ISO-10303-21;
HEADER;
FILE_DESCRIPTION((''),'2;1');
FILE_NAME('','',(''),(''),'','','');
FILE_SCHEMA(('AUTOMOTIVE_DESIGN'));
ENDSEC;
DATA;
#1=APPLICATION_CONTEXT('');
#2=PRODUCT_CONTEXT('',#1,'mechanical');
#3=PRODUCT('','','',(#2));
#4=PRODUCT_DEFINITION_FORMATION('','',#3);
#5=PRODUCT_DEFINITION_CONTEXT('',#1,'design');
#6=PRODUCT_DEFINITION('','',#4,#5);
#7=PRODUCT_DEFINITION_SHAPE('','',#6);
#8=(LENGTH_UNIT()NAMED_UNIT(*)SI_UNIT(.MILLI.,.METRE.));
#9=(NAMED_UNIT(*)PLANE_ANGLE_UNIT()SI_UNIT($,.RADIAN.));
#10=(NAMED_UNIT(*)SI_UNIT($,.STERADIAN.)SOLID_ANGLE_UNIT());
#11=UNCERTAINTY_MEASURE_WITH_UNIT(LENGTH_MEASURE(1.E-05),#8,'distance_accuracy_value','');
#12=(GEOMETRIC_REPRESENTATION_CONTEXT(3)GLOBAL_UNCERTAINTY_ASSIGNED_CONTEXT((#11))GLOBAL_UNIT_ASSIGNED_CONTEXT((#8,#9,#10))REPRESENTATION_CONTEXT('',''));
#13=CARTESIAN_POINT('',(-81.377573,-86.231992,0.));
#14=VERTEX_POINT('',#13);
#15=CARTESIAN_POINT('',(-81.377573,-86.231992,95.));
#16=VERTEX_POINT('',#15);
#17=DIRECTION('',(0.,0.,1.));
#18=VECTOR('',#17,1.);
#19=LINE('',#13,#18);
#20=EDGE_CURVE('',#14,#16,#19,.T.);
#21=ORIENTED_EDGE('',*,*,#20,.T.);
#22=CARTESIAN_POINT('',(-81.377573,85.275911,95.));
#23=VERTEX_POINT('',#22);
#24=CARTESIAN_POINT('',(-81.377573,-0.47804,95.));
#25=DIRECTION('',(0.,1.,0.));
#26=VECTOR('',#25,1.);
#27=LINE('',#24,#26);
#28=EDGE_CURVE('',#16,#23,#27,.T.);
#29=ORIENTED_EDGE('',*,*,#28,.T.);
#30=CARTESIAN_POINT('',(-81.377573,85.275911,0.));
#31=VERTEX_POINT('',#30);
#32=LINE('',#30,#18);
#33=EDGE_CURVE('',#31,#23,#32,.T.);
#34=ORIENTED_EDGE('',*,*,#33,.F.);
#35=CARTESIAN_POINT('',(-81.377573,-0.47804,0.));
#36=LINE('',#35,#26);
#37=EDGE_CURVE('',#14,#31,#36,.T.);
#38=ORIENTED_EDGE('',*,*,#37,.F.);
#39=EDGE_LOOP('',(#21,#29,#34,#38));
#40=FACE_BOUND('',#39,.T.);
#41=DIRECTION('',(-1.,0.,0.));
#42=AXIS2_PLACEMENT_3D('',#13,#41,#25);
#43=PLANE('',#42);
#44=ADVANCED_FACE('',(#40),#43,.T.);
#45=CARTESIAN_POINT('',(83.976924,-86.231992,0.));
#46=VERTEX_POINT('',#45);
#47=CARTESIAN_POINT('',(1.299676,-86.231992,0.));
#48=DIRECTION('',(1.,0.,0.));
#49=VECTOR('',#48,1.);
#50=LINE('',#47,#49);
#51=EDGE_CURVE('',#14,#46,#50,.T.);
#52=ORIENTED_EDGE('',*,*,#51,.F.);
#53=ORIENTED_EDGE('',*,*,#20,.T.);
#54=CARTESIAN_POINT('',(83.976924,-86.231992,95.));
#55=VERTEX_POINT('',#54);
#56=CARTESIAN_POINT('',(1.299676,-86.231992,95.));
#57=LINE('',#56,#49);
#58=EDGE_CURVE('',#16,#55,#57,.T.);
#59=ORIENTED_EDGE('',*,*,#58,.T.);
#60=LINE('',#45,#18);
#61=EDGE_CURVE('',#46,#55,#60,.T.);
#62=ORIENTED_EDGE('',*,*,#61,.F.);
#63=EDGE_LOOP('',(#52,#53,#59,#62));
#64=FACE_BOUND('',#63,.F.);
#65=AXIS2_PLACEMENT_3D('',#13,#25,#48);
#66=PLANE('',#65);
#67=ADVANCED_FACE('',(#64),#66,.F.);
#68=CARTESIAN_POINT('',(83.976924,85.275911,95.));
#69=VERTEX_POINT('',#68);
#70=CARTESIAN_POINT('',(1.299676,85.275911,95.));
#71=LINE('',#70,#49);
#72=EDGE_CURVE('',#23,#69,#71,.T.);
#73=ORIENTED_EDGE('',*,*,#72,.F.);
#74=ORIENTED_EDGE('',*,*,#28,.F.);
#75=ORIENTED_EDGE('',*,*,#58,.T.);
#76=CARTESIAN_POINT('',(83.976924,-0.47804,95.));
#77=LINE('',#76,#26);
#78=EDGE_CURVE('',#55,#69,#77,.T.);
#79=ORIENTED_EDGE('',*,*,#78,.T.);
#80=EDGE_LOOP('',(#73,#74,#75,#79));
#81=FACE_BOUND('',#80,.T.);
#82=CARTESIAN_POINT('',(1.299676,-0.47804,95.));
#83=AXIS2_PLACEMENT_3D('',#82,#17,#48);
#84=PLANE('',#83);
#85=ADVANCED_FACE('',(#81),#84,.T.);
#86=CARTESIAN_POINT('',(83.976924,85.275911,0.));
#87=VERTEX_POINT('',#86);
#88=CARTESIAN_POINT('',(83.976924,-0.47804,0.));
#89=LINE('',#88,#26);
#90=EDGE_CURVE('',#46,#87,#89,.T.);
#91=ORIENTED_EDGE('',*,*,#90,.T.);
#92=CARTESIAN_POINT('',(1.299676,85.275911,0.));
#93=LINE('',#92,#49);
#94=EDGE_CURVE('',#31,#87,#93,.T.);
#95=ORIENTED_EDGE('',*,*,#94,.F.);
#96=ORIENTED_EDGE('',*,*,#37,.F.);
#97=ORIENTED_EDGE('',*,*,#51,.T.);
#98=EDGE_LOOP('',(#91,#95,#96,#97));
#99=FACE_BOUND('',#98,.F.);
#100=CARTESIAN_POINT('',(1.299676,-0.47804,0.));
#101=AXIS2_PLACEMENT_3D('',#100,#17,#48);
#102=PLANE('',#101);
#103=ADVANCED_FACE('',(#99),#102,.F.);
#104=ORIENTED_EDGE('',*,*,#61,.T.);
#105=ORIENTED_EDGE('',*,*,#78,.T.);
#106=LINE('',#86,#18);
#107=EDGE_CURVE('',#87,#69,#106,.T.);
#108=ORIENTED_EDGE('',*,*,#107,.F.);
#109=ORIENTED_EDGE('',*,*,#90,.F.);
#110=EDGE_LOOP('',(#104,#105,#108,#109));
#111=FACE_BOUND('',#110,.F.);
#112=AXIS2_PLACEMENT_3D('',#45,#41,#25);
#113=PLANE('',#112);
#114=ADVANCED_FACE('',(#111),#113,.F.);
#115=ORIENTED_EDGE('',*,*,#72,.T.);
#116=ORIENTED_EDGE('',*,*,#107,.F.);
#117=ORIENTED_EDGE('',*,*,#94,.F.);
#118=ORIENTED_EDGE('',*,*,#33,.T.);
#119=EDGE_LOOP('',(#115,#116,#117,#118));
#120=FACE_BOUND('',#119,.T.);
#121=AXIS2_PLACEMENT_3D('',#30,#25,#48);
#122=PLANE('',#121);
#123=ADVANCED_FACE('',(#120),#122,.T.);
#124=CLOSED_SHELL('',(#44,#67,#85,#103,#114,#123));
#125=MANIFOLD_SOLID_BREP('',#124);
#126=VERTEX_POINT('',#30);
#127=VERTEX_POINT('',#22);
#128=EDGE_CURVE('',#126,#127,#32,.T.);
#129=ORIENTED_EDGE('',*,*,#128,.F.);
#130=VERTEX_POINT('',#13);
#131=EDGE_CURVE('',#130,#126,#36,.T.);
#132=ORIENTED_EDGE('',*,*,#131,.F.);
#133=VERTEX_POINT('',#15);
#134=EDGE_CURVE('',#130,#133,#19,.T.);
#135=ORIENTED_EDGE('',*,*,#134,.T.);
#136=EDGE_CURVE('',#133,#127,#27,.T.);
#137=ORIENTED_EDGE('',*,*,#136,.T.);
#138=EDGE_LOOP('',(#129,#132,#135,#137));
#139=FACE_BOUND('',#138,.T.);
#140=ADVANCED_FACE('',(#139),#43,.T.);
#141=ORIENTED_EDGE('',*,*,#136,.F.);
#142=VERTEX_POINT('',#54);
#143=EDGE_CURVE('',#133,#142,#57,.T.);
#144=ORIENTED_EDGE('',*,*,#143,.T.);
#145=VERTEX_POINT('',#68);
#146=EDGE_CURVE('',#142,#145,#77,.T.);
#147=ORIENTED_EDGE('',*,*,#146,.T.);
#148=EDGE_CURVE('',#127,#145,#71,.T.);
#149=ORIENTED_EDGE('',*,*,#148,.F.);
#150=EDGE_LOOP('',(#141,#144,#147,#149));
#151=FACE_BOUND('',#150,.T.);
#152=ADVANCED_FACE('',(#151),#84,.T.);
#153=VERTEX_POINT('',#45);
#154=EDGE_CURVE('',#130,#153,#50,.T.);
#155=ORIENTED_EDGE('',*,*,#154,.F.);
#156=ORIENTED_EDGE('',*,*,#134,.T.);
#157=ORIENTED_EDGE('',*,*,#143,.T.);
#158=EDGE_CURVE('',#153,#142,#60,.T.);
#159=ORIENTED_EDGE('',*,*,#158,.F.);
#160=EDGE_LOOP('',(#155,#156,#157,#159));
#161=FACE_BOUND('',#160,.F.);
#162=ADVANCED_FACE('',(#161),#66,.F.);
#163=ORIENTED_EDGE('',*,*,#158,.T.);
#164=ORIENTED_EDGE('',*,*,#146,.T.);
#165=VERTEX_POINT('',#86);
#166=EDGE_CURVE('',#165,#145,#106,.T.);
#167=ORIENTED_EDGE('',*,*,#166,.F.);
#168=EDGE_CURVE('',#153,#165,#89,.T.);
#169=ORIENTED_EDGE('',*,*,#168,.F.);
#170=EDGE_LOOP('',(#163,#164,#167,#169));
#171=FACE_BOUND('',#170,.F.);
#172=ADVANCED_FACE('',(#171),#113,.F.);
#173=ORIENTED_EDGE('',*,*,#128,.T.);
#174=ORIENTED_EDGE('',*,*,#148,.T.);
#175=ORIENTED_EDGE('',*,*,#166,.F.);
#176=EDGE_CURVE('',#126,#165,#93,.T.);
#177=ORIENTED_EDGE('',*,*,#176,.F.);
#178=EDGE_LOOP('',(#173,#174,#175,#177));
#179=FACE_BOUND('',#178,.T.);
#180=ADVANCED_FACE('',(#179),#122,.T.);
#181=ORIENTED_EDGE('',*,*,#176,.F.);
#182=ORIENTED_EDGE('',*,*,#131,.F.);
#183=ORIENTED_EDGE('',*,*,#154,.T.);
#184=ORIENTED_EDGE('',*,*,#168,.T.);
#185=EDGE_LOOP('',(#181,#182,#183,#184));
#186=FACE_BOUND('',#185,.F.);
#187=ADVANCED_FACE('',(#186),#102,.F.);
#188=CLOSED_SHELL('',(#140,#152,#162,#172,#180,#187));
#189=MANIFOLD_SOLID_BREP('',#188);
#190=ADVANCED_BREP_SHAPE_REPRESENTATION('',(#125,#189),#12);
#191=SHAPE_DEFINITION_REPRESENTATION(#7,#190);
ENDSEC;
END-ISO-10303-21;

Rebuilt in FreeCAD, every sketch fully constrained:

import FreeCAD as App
import Part
import Sketcher
Q = App.Units.Quantity

doc = App.newDocument("Part")
body = doc.addObject("PartDesign::Body", "Body")

# Sketch on XY plane
sketch1 = body.newObject("Sketcher::SketchObject", "Sketch")
sketch1.AttachmentSupport = (doc.getObject("XY_Plane"), [""])
sketch1.MapMode = "FlatFace"
sketch1.addGeometry([
    Part.LineSegment(App.Vector(-81, 85, 0), App.Vector(-81, -86, 0)),
    Part.LineSegment(App.Vector(-81, -86, 0), App.Vector(84, -86, 0)),
    Part.LineSegment(App.Vector(84, -86, 0), App.Vector(84, 85, 0)),
    Part.LineSegment(App.Vector(84, 85, 0), App.Vector(-81, 85, 0)),
], False)
sketch1.addConstraint([
    Sketcher.Constraint("Coincident", 0, 2, 1, 1),
    Sketcher.Constraint("Coincident", 1, 2, 2, 1),
    Sketcher.Constraint("Coincident", 2, 2, 3, 1),
    Sketcher.Constraint("Coincident", 3, 2, 0, 1),
    Sketcher.Constraint("Vertical", 0),
    Sketcher.Constraint("Horizontal", 1),
    Sketcher.Constraint("Vertical", 2),
    Sketcher.Constraint("Horizontal", 3),
    Sketcher.Constraint("DistanceX", 1, 1, 1, 2, Q("165.354498 mm")),
    Sketcher.Constraint("DistanceY", 0, 2, 0, 1, Q("171.507902 mm")),
    Sketcher.Constraint("DistanceY", 0, 2, -1, 1, Q("86.231992 mm")),
    Sketcher.Constraint("DistanceX", 0, 2, -1, 1, Q("81.377573 mm")),
])
pad1 = body.newObject("PartDesign::Pad", "Pad")
pad1.Profile = sketch1
pad1.Length = 95
body2 = doc.addObject("PartDesign::Body", "Body001")

# Sketch on XY plane
sketch2 = body2.newObject("Sketcher::SketchObject", "Sketch001")
sketch2.AttachmentSupport = (doc.getObject("XY_Plane001"), [""])
sketch2.MapMode = "FlatFace"
sketch2.addGeometry([
    Part.LineSegment(App.Vector(-81, 85, 0), App.Vector(-81, -86, 0)),
    Part.LineSegment(App.Vector(-81, -86, 0), App.Vector(84, -86, 0)),
    Part.LineSegment(App.Vector(84, -86, 0), App.Vector(84, 85, 0)),
    Part.LineSegment(App.Vector(84, 85, 0), App.Vector(-81, 85, 0)),
], False)
sketch2.addConstraint([
    Sketcher.Constraint("Coincident", 0, 2, 1, 1),
    Sketcher.Constraint("Coincident", 1, 2, 2, 1),
    Sketcher.Constraint("Coincident", 2, 2, 3, 1),
    Sketcher.Constraint("Coincident", 3, 2, 0, 1),
    Sketcher.Constraint("Vertical", 0),
    Sketcher.Constraint("Horizontal", 1),
    Sketcher.Constraint("Vertical", 2),
    Sketcher.Constraint("Horizontal", 3),
    Sketcher.Constraint("DistanceX", 1, 1, 1, 2, Q("165.354498 mm")),
    Sketcher.Constraint("DistanceY", 0, 2, 0, 1, Q("171.507902 mm")),
    Sketcher.Constraint("DistanceY", 0, 2, -1, 1, Q("86.231992 mm")),
    Sketcher.Constraint("DistanceX", 0, 2, -1, 1, Q("81.377573 mm")),
])
pad2 = body2.newObject("PartDesign::Pad", "Pad001")
pad2.Profile = sketch2
pad2.Length = 95

doc.recompute()
